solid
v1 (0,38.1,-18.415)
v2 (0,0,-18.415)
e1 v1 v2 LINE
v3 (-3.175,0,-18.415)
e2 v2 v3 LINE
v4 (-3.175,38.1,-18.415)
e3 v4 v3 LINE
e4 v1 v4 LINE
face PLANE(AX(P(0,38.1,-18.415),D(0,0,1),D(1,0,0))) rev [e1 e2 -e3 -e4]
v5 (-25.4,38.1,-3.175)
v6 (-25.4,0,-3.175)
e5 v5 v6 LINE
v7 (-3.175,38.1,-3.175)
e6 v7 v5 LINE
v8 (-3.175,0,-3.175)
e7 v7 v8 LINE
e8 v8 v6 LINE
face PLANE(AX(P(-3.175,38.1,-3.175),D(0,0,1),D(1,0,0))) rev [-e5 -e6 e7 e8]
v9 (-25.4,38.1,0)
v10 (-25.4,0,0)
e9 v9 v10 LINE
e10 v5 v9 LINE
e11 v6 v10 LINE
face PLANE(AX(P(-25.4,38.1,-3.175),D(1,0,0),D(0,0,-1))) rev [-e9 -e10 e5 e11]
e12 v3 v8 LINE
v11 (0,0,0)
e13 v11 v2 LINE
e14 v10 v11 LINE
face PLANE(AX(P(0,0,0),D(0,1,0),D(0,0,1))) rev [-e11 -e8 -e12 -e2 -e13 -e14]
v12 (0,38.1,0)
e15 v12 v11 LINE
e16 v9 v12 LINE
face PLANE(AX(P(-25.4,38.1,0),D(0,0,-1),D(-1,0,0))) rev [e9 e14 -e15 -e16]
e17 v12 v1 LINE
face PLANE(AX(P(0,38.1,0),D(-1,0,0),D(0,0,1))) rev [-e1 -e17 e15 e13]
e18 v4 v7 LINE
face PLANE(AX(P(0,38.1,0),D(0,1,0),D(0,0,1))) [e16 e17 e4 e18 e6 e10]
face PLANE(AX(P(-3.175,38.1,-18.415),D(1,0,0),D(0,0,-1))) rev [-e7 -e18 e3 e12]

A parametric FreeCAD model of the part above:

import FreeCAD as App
import Part
import Sketcher
from FreeCAD import Vector
Q = App.Units.Quantity

doc = App.newDocument("Part")
body = doc.addObject("PartDesign::Body", "Body")

# Sketch on XZ plane
sketch1 = doc.addObject("Sketcher::SketchObject", "Sketch")
body.addObject(sketch1)
sketch1.AttachmentSupport = (doc.XZ_Plane, [""])
sketch1.MapMode = "FlatFace"
sketch1.addGeometry(Part.LineSegment(Vector(0, 0, 0), Vector(0, -18.4, 0)), False)
sketch1.addGeometry(Part.LineSegment(Vector(0, -18.4, 0), Vector(-3.2, -18.4, 0)), False)
sketch1.addGeometry(Part.LineSegment(Vector(-3.2, -18.4, 0), Vector(-3.2, -3.2, 0)), False)
sketch1.addGeometry(Part.LineSegment(Vector(-3.2, -3.2, 0), Vector(-25.4, -3.2, 0)), False)
sketch1.addGeometry(Part.LineSegment(Vector(-25.4, -3.2, 0), Vector(-25.4, 0, 0)), False)
sketch1.addGeometry(Part.LineSegment(Vector(-25.4, 0, 0), Vector(0, 0, 0)), False)
sketch1.addConstraint(Sketcher.Constraint("Coincident", 0, 2, 1, 1))
sketch1.addConstraint(Sketcher.Constraint("Coincident", 1, 2, 2, 1))
sketch1.addConstraint(Sketcher.Constraint("Coincident", 2, 2, 3, 1))
sketch1.addConstraint(Sketcher.Constraint("Coincident", 3, 2, 4, 1))
sketch1.addConstraint(Sketcher.Constraint("Coincident", 4, 2, 5, 1))
sketch1.addConstraint(Sketcher.Constraint("Coincident", 5, 2, 0, 1))
sketch1.addConstraint(Sketcher.Constraint("Vertical", 0))
sketch1.addConstraint(Sketcher.Constraint("Horizontal", 1))
sketch1.addConstraint(Sketcher.Constraint("Vertical", 2))
sketch1.addConstraint(Sketcher.Constraint("Horizontal", 3))
sketch1.addConstraint(Sketcher.Constraint("Vertical", 4))
sketch1.addConstraint(Sketcher.Constraint("Horizontal", 5))
sketch1.addConstraint(Sketcher.Constraint("Coincident", 5, 2, -1, 1))
sketch1.addConstraint(Sketcher.Constraint("Equal", 1, 4))
sketch1.addConstraint(Sketcher.Constraint("DistanceX", 5, 1, 5, 2, Q("1 in")))
sketch1.addConstraint(Sketcher.Constraint("DistanceY", 2, 1, 2, 2, Q("0.6 in")))
sketch1.addConstraint(Sketcher.Constraint("DistanceX", 1, 2, 1, 1, Q("0.125 in")))
pad1 = doc.addObject("PartDesign::Pad", "Pad")
body.addObject(pad1)
pad1.Profile = sketch1
pad1.Length = Q("1.5 in")
pad1.Reversed = True

doc.recompute()
